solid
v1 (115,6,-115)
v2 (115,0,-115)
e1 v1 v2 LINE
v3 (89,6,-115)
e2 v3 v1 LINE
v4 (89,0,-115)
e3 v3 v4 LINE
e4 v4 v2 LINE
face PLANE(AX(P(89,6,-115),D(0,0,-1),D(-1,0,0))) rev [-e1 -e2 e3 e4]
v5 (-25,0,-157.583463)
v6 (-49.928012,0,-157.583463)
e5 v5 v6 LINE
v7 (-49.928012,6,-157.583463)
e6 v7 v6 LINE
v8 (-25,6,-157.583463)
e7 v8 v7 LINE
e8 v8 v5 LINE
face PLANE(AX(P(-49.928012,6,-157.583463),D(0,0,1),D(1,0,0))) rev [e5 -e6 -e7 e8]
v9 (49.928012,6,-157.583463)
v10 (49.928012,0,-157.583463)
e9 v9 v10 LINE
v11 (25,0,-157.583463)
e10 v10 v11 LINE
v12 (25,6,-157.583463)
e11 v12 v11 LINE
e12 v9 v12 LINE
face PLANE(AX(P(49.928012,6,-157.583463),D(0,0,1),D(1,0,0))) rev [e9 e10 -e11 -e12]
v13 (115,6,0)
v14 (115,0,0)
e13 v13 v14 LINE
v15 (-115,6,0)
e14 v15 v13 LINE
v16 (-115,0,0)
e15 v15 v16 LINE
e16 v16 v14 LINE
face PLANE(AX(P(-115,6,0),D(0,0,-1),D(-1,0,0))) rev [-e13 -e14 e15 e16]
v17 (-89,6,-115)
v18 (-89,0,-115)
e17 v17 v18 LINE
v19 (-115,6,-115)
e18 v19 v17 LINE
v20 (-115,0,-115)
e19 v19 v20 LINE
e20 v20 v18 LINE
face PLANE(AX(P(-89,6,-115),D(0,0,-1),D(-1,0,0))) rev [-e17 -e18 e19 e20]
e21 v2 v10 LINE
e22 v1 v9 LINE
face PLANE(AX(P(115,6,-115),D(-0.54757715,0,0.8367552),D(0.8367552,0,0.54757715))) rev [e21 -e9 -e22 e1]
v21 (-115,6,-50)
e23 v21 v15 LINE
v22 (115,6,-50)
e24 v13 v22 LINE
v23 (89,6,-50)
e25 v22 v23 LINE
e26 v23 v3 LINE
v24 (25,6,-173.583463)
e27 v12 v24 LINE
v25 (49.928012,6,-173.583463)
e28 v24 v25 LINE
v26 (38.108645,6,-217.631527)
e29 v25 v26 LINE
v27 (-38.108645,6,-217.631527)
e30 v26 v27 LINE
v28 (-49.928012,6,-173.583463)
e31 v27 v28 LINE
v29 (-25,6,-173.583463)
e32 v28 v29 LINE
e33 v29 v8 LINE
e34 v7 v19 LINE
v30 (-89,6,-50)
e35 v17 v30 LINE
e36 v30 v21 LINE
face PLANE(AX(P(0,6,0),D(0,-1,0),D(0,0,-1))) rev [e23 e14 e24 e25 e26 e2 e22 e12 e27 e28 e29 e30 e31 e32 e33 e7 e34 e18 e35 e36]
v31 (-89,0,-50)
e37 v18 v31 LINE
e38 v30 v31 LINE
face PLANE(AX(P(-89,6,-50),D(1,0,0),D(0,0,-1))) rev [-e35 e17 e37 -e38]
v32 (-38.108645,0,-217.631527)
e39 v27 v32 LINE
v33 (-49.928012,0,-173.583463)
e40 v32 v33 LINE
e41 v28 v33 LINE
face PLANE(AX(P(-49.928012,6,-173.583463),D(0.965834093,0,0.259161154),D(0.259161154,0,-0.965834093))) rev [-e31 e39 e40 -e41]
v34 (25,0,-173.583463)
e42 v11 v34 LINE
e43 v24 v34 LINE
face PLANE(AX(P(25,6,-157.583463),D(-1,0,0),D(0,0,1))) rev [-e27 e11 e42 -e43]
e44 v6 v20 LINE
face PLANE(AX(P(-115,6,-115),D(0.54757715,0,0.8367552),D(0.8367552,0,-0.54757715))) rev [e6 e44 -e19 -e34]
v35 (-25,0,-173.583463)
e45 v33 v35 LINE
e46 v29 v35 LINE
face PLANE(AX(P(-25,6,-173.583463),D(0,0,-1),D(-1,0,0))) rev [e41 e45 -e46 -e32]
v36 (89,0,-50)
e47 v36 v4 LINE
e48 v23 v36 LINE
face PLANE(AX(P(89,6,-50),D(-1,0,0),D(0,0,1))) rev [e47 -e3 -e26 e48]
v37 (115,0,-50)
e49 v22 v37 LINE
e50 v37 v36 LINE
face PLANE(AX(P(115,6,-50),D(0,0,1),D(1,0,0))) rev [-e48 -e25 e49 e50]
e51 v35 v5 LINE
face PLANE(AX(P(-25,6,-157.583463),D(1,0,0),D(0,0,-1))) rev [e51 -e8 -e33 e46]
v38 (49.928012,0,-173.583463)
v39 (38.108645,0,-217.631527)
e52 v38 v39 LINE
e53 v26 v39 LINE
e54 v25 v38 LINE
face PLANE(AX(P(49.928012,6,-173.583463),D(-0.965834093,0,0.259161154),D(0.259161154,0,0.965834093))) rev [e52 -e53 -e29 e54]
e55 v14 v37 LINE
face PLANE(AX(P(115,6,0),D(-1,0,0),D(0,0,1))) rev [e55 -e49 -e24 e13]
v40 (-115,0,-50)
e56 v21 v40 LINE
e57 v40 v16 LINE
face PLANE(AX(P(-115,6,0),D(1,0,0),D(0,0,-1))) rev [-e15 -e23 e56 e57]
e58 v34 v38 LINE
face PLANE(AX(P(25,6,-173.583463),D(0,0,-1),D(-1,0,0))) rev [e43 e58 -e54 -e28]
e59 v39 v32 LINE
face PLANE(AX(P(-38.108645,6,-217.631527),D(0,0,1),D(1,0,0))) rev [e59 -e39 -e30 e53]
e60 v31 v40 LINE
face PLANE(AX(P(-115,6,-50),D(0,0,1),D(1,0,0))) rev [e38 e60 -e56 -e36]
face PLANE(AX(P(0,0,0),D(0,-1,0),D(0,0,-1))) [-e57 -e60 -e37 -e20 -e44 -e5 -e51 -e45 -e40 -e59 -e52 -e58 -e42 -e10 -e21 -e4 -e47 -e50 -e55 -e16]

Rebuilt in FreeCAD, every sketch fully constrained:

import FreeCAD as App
import Part
import Sketcher
Q = App.Units.Quantity


def add_polygon(sketch, points):
    """Adds a closed chain of lines whose ends are joined by coincident constraints."""
    first, n = sketch.GeometryCount, len(points)
    for a, b in zip(points, points[1:] + points[:1]):
        sketch.addGeometry(Part.LineSegment(App.Vector(*a, 0), App.Vector(*b, 0)), False)
    for i in range(n):
        sketch.addConstraint(Sketcher.Constraint("Coincident", first + i, 2, first + (i + 1) % n, 1))

doc = App.newDocument("Part")
body = doc.addObject("PartDesign::Body", "Body")

# Sketch on XZ plane
sketch1 = body.newObject("Sketcher::SketchObject", "Sketch")
sketch1.AttachmentSupport = (doc.getObject("XZ_Plane"), [""])
sketch1.MapMode = "FlatFace"
add_polygon(sketch1, [(-115, 0), (115, 0), (115, -50), (89, -50), (89, -115), (115, -115), (49.928012, -157.583463), (25, -157.583463), (25, -173.583463), (49.928012, -173.583463), (38.108645, -217.631527), (-38.108645, -217.631527), (-49.928012, -173.583463), (-25, -173.583463), (-25, -157.583463), (-49.928012, -157.583463), (-115, -115), (-89, -115), (-89, -50), (-115, -50)])  # lines 0-19
sketch1.addConstraint([
    Sketcher.Constraint("Horizontal", 0),
    Sketcher.Constraint("Vertical", 1),
    Sketcher.Constraint("Horizontal", 2),
    Sketcher.Constraint("Vertical", 3),
    Sketcher.Constraint("Horizontal", 4),
    Sketcher.Constraint("Horizontal", 6),
    Sketcher.Constraint("Vertical", 7),
    Sketcher.Constraint("Horizontal", 8),
    Sketcher.Constraint("Horizontal", 10),
    Sketcher.Constraint("Horizontal", 12),
    Sketcher.Constraint("Vertical", 13),
    Sketcher.Constraint("Horizontal", 14),
    Sketcher.Constraint("Horizontal", 16),
    Sketcher.Constraint("Vertical", 17),
    Sketcher.Constraint("Horizontal", 18),
    Sketcher.Constraint("Vertical", 19),
    Sketcher.Constraint("Symmetric", 0, 2, 19, 2, -1, 1),
    Sketcher.Constraint("Symmetric", 8, 2, 11, 2, -2),
    Sketcher.Constraint("Symmetric", 6, 2, 13, 2, -2),
    Sketcher.Constraint("Symmetric", 4, 2, 15, 2, -2),
    Sketcher.Constraint("Symmetric", 2, 2, 17, 2, -2),
    Sketcher.Constraint("Vertical", 1, 2, 4, 2),
    Sketcher.Constraint("Vertical", 5, 2, 8, 2),
    Sketcher.Constraint("Vertical", 11, 2, 14, 2),
    Sketcher.Constraint("Equal", 9, 11),
    Sketcher.Constraint("DistanceX", 0, 1, 0, 2, Q("230 mm")),
    Sketcher.Constraint("DistanceX", 2, 2, 2, 1, Q("26 mm")),
    Sketcher.Constraint("DistanceY", 1, 2, 1, 1, Q("50 mm")),
    Sketcher.Constraint("DistanceY", 3, 2, 3, 1, Q("65 mm")),
    Sketcher.Constraint("DistanceY", 7, 2, 7, 1, Q("16 mm")),
    Sketcher.Constraint("DistanceX", -1, 1, 6, 2, Q("25 mm")),
    Sketcher.Constraint("DistanceX", 6, 2, 6, 1, Q("24.928012 mm")),
    Sketcher.Constraint("DistanceX", 10, 2, 10, 1, Q("76.217291 mm")),
    Sketcher.Constraint("Distance", 5, Q("77.767056 mm")),
    Sketcher.Constraint("Distance", 9, Q("45.606243 mm")),
])
pad1 = body.newObject("PartDesign::Pad", "Pad")
pad1.Profile = sketch1
pad1.Length = 6
pad1.Reversed = True

doc.recompute()
